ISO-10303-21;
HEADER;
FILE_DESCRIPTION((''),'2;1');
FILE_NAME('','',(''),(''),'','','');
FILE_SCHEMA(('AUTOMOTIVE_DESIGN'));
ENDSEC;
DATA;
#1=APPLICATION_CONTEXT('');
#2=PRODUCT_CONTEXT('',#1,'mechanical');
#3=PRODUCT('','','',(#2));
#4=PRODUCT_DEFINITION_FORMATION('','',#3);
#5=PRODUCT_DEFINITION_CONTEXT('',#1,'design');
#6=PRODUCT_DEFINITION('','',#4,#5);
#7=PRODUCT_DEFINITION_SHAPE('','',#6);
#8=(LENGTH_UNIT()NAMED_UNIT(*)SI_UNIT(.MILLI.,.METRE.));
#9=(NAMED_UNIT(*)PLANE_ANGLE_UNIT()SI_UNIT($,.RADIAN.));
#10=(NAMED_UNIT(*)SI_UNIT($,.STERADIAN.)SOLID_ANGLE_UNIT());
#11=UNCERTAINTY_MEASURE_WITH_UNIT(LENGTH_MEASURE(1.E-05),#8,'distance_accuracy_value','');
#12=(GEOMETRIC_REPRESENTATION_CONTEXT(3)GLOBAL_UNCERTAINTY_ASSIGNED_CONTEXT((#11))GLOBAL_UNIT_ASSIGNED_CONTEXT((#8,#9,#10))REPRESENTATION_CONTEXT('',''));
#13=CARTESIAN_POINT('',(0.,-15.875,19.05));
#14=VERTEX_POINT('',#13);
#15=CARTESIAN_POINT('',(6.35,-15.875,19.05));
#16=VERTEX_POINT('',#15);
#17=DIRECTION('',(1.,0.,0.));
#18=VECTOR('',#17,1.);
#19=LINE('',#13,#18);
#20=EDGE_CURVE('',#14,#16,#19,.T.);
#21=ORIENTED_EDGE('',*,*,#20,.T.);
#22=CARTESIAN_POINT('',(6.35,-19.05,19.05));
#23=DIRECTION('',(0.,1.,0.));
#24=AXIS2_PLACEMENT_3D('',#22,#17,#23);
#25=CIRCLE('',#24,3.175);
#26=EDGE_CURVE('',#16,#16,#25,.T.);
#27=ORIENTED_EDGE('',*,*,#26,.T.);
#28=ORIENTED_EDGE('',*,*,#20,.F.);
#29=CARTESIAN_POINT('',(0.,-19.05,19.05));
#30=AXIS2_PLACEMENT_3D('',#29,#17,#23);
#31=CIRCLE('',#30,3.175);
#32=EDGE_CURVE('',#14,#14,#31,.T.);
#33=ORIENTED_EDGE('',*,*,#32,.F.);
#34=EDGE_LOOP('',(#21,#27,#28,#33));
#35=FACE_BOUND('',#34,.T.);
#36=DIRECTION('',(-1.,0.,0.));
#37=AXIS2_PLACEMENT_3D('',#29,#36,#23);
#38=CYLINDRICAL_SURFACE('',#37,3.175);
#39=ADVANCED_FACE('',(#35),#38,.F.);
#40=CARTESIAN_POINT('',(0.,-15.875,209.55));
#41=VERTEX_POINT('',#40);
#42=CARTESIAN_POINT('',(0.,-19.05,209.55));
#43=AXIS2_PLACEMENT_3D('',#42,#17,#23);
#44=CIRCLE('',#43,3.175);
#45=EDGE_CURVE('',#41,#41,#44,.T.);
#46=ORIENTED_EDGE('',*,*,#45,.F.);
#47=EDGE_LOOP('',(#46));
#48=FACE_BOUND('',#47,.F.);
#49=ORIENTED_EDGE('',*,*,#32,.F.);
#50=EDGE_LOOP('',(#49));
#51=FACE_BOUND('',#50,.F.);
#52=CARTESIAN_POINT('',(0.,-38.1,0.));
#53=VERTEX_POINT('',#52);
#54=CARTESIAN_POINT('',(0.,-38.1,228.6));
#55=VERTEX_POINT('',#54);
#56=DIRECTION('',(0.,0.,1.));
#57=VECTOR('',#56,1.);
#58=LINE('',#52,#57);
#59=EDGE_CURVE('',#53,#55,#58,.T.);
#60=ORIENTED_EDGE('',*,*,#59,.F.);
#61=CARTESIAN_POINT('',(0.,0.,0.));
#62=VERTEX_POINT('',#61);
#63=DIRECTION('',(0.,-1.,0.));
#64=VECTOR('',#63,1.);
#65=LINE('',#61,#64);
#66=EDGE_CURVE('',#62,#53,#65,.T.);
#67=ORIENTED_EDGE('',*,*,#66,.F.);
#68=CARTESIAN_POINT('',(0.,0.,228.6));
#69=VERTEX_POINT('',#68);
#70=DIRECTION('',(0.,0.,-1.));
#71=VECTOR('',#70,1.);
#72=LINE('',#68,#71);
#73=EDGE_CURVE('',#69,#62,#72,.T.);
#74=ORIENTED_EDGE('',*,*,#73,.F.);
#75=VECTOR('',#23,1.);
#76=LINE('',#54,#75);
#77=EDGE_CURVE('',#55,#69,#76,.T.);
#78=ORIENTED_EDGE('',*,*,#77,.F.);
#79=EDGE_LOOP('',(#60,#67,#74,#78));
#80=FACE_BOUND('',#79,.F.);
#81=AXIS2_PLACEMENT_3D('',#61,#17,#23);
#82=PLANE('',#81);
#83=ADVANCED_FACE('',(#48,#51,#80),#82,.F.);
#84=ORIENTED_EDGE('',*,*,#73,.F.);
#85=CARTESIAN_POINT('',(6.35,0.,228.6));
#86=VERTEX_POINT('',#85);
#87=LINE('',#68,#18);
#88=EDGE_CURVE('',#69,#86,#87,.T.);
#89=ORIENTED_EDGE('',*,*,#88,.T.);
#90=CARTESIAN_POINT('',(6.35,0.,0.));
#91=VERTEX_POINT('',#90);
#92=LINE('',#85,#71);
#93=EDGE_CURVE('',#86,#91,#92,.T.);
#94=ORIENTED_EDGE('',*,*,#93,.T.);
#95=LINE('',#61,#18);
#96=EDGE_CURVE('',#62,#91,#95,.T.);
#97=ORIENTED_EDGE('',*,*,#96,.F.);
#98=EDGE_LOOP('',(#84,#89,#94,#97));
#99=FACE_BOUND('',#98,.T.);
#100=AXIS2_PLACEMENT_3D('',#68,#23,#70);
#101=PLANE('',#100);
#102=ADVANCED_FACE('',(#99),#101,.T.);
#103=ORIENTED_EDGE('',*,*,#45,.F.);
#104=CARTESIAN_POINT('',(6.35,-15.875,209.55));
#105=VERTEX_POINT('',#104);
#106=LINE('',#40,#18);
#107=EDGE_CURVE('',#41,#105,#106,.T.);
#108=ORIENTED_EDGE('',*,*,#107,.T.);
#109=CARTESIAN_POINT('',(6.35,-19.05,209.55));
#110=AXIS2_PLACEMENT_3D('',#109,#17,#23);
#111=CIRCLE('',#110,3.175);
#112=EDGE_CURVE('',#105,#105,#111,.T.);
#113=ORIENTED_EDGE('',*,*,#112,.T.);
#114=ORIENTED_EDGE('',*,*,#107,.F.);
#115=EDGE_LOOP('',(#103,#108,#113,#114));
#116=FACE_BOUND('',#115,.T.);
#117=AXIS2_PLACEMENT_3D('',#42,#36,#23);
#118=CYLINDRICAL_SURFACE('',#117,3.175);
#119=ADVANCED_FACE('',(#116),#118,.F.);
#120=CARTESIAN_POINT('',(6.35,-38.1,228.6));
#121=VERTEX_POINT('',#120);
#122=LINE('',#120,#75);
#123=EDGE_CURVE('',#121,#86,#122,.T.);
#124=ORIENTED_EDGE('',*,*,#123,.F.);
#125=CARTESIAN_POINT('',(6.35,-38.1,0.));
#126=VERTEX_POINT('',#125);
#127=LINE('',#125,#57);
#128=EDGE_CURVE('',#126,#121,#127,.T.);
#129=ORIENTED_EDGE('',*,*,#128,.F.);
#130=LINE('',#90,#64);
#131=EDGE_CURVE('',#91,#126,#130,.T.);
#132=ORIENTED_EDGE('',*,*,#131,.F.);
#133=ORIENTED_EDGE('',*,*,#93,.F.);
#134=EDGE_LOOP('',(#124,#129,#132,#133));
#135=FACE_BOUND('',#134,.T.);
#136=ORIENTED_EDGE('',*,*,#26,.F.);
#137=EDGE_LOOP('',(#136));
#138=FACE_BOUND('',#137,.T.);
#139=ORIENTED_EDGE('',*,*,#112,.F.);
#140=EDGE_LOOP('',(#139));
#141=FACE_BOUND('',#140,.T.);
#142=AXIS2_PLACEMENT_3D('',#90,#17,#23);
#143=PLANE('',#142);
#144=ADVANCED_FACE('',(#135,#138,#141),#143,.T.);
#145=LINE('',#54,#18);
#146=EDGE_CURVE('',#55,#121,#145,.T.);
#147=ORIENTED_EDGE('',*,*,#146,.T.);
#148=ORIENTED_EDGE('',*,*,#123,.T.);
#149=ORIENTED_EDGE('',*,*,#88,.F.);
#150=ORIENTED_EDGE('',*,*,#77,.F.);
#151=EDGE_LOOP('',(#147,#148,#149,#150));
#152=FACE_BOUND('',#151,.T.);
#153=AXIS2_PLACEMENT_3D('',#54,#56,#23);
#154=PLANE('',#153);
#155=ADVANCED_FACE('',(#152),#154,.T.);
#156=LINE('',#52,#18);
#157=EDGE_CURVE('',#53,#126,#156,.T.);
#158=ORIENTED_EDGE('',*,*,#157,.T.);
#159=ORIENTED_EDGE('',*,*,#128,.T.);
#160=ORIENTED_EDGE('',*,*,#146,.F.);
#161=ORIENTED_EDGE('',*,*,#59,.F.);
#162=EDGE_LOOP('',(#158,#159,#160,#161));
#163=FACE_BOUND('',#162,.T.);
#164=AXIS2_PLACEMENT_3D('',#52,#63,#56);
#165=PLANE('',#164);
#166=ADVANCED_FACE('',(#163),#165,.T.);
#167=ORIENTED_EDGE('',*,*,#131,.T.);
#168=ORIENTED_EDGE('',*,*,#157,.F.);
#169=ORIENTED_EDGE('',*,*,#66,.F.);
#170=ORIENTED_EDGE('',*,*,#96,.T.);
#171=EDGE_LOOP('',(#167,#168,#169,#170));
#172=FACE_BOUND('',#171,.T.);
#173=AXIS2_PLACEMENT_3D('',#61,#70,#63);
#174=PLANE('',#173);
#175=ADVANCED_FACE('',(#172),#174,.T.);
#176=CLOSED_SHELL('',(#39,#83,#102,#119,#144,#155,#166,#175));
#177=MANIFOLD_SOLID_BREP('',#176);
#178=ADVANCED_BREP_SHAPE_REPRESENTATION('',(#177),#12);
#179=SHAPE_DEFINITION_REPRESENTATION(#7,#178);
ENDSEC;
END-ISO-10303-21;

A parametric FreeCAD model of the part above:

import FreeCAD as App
import Part
import Sketcher
Q = App.Units.Quantity


def add_polygon(sketch, points):
    """Adds a closed chain of lines whose ends are joined by coincident constraints."""
    first, n = sketch.GeometryCount, len(points)
    for a, b in zip(points, points[1:] + points[:1]):
        sketch.addGeometry(Part.LineSegment(App.Vector(*a, 0), App.Vector(*b, 0)), False)
    for i in range(n):
        sketch.addConstraint(Sketcher.Constraint("Coincident", first + i, 2, first + (i + 1) % n, 1))

doc = App.newDocument("Part")
body = doc.addObject("PartDesign::Body", "Body")

# Sketch on YZ plane
sketch1 = body.newObject("Sketcher::SketchObject", "Sketch")
sketch1.AttachmentSupport = (doc.getObject("YZ_Plane"), [""])
sketch1.MapMode = "FlatFace"
add_polygon(sketch1, [(-38.1, 0), (0, 0), (0, 228.6), (-38.1, 228.6)])  # lines 0-3
sketch1.addGeometry(Part.Circle(App.Vector(-19.05, 19.05, 0), App.Vector(0, 0, 1), 3.175), False)  # 4
sketch1.addGeometry(Part.Circle(App.Vector(-19.05, 209.55, 0), App.Vector(0, 0, 1), 3.175), False)  # 5
sketch1.addConstraint([
    Sketcher.Constraint("Horizontal", 0),
    Sketcher.Constraint("Vertical", 1),
    Sketcher.Constraint("Horizontal", 2),
    Sketcher.Constraint("Vertical", 3),
    Sketcher.Constraint("Coincident", 0, 2, -1, 1),
    Sketcher.Constraint("Equal", 4, 5),
    Sketcher.Constraint("Vertical", 4, 3, 5, 3),
    Sketcher.Constraint("Diameter", 4, Q("0.25 in")),
    Sketcher.Constraint("DistanceY", 1, 1, 1, 2, Q("9 in")),
    Sketcher.Constraint("DistanceX", 0, 1, 0, 2, Q("1.5 in")),
    Sketcher.Constraint("DistanceX", 4, 3, -1, 1, Q("0.75 in")),
    Sketcher.Constraint("DistanceY", -1, 1, 4, 3, Q("0.75 in")),
    Sketcher.Constraint("DistanceY", 5, 3, 1, 2, Q("0.75 in")),
])
pad1 = body.newObject("PartDesign::Pad", "Pad")
pad1.Profile = sketch1
pad1.Length = Q("0.25 in")

doc.recompute()
